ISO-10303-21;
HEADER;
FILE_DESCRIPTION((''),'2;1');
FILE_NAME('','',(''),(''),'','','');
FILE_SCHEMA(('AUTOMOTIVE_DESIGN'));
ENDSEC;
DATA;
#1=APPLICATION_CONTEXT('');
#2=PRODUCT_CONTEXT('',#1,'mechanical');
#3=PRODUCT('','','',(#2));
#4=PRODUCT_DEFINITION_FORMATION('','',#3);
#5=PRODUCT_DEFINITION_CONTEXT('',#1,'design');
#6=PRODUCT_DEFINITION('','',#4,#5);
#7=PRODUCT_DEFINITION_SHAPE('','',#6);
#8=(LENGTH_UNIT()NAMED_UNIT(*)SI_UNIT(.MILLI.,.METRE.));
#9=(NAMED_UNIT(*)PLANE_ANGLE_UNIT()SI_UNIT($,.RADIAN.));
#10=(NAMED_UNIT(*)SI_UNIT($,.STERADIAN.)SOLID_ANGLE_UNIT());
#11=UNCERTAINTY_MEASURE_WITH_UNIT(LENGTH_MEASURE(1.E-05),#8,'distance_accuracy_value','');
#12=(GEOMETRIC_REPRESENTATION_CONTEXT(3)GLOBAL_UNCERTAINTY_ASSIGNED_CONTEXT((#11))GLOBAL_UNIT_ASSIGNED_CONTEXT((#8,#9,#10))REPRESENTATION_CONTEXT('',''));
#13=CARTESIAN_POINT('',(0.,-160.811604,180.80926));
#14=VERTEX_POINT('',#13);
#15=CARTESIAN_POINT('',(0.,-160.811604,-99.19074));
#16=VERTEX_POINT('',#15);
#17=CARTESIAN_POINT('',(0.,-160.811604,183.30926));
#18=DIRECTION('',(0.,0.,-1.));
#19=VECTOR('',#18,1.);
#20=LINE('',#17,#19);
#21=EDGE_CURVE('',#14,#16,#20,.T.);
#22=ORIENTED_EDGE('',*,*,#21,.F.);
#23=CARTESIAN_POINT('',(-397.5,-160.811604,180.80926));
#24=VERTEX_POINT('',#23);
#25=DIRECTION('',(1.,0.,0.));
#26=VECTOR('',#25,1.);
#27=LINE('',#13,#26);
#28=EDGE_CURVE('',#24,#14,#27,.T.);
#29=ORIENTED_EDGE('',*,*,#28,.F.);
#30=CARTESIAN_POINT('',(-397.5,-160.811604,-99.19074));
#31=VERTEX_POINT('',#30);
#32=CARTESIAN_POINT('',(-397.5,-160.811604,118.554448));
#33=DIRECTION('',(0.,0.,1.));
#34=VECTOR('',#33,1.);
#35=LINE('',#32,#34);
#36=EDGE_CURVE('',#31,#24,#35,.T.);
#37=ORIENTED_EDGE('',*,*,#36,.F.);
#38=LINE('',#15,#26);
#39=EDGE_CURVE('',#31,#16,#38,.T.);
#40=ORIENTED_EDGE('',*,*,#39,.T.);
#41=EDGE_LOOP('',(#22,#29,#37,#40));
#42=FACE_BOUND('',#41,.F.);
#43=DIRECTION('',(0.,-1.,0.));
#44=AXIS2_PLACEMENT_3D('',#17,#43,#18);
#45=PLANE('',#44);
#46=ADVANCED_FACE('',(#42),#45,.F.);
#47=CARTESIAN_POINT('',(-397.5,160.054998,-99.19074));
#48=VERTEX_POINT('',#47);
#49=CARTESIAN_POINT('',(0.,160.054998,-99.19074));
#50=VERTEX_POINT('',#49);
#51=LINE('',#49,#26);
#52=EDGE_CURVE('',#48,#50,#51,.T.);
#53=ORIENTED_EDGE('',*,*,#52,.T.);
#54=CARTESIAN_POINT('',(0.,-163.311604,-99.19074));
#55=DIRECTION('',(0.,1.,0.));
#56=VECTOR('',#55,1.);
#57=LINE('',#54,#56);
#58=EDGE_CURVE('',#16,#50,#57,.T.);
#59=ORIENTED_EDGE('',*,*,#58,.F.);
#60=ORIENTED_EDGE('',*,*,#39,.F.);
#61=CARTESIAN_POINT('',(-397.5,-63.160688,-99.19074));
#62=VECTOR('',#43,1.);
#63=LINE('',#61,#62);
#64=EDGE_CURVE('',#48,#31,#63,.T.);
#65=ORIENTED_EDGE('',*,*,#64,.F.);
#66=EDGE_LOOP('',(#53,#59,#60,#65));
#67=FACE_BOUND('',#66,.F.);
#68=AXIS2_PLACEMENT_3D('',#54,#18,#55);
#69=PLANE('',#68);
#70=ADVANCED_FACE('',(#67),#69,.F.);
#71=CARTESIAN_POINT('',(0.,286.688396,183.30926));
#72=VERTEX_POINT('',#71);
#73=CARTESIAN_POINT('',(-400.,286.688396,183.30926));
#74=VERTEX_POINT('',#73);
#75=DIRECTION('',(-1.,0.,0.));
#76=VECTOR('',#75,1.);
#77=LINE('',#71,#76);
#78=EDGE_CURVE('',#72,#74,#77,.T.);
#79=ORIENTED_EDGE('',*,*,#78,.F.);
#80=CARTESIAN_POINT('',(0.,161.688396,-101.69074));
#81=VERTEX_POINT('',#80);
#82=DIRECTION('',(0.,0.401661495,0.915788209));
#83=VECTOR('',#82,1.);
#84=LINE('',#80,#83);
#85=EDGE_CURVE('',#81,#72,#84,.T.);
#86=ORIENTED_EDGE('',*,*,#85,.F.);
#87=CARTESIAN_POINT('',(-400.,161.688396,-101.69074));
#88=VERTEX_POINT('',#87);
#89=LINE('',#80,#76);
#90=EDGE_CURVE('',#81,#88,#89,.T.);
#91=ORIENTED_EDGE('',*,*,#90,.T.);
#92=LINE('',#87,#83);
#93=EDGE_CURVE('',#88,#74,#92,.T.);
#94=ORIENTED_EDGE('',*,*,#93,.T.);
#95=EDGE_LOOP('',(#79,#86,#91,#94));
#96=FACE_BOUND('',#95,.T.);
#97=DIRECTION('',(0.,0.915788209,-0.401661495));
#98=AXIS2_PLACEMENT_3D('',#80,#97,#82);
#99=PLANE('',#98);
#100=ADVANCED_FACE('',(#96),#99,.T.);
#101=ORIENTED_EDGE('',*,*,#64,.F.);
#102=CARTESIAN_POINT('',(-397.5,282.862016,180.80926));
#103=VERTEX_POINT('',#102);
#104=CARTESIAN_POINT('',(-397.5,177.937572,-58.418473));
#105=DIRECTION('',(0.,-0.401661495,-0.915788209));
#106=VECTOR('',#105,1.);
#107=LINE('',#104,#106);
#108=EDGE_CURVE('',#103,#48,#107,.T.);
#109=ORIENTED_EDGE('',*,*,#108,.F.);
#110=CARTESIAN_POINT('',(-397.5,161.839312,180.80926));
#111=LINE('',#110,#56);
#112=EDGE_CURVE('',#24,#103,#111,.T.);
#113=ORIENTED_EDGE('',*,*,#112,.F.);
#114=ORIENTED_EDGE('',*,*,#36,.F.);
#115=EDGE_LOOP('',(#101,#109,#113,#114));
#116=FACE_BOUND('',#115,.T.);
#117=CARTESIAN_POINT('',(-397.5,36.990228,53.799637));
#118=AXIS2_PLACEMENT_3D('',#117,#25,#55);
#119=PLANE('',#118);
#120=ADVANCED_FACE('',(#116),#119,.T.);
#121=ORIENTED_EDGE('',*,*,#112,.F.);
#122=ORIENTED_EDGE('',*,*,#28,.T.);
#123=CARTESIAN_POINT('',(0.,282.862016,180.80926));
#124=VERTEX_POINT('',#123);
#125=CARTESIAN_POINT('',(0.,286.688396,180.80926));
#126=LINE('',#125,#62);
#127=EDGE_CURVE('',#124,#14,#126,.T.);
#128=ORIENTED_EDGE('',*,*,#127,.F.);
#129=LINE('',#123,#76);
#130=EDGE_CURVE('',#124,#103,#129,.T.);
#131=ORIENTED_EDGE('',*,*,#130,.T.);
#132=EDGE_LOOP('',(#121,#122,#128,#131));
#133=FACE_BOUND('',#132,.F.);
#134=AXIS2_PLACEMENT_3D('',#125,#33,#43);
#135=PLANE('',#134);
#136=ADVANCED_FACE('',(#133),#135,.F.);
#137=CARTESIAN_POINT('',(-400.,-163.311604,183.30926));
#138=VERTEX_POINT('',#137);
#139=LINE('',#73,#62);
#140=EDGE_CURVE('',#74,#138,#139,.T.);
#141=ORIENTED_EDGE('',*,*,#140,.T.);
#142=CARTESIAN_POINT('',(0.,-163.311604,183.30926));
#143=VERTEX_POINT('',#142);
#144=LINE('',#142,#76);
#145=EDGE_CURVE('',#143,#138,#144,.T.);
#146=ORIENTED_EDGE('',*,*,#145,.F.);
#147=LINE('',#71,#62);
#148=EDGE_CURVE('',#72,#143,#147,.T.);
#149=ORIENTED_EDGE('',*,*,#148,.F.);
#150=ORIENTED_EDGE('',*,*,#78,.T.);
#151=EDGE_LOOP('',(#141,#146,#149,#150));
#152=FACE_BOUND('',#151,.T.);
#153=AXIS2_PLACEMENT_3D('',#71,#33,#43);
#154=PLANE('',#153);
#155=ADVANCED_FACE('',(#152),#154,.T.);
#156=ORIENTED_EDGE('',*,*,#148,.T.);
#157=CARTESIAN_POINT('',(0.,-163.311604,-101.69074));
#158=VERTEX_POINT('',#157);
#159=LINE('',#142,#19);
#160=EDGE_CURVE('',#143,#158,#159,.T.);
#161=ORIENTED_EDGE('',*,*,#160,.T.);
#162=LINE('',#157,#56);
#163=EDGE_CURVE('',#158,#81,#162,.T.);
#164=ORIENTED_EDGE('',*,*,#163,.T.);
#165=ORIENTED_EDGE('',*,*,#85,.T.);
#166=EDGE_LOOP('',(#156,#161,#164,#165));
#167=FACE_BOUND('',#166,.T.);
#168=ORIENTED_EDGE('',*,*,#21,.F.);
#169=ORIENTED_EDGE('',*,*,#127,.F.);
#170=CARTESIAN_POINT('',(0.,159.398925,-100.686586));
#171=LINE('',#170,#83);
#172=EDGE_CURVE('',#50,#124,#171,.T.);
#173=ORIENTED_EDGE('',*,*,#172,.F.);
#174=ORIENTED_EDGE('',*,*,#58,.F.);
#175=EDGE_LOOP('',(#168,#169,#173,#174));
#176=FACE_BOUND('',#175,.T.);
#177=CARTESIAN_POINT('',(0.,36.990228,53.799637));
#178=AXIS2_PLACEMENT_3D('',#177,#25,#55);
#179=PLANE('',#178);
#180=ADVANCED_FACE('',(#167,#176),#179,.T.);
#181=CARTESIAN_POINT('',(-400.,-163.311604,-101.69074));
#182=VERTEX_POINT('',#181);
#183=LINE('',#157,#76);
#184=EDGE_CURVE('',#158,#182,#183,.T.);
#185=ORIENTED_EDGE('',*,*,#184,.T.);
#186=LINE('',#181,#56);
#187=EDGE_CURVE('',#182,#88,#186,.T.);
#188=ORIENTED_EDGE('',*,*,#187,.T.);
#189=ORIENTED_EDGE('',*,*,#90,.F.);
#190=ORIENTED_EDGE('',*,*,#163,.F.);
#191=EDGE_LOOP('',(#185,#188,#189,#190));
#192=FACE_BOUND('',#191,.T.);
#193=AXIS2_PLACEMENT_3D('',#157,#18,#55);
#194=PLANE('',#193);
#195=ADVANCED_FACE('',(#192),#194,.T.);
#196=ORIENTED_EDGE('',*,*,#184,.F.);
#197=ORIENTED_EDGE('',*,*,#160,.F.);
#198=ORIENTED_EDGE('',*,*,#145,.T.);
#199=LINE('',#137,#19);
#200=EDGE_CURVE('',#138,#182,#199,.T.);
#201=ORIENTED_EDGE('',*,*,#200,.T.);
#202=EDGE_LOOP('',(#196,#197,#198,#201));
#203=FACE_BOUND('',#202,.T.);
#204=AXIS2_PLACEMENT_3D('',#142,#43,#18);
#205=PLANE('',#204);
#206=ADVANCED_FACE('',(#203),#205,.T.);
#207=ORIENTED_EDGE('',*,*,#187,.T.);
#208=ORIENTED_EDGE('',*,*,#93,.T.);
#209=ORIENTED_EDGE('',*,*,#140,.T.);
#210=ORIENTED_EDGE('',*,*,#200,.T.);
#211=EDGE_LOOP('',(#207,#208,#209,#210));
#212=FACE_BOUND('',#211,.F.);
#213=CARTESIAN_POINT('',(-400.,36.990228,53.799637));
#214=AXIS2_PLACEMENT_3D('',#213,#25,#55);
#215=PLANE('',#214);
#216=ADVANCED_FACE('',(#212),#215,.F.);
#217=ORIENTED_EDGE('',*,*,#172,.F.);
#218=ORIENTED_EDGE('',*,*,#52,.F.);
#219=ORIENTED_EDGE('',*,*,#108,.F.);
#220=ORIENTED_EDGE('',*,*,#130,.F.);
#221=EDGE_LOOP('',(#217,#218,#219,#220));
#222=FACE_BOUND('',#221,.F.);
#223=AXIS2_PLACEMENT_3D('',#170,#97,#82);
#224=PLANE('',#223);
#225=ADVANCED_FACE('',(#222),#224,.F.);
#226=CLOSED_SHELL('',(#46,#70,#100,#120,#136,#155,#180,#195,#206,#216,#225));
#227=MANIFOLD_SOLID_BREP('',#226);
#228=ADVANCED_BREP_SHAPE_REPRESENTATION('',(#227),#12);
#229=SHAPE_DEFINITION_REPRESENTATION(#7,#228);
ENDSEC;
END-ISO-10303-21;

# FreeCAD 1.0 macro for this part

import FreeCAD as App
import Part
import Sketcher
from FreeCAD import Vector
Q = App.Units.Quantity


def faces_at(feature, points):
    """Names of the faces that lie closest to the given points."""
    faces = feature.Shape.Faces
    near = lambda p: min(range(len(faces)), key=lambda i: faces[i].distToShape(Part.Vertex(*p))[0])
    return sorted({f"Face{near(p) + 1}" for p in points})

doc = App.newDocument("Part")
body = doc.addObject("PartDesign::Body", "Body")

# Sketch on YZ plane
sketch1 = body.newObject("Sketcher::SketchObject", "Sketch")
sketch1.AttachmentSupport = (doc.getObject("YZ_Plane"), [""])
sketch1.MapMode = "FlatFace"
sketch1.addGeometry(Part.LineSegment(Vector(286.688396, 183.30926, 0), Vector(-163.311604, 183.30926, 0)), False)
sketch1.addGeometry(Part.LineSegment(Vector(-163.311604, 183.30926, 0), Vector(-163.311604, -101.69074, 0)), False)
sketch1.addGeometry(Part.LineSegment(Vector(-163.311604, -101.69074, 0), Vector(161.688396, -101.69074, 0)), False)
sketch1.addGeometry(Part.LineSegment(Vector(161.688396, -101.69074, 0), Vector(286.688396, 183.30926, 0)), False)
sketch1.addConstraint(Sketcher.Constraint("Coincident", 0, 2, 1, 1))
sketch1.addConstraint(Sketcher.Constraint("Coincident", 1, 2, 2, 1))
sketch1.addConstraint(Sketcher.Constraint("Coincident", 2, 2, 3, 1))
sketch1.addConstraint(Sketcher.Constraint("Coincident", 3, 2, 0, 1))
sketch1.addConstraint(Sketcher.Constraint("Horizontal", 0))
sketch1.addConstraint(Sketcher.Constraint("Vertical", 1))
sketch1.addConstraint(Sketcher.Constraint("Horizontal", 2))
sketch1.addConstraint(Sketcher.Constraint("DistanceX", 0, 2, 0, 1, Q("450 mm")))
sketch1.addConstraint(Sketcher.Constraint("DistanceX", 2, 1, 2, 2, Q("325 mm")))
sketch1.addConstraint(Sketcher.Constraint("DistanceY", 1, 2, 1, 1, Q("285 mm")))
sketch1.addConstraint(Sketcher.Constraint("DistanceY", -1, 1, 0, 2, Q("183.30926 mm")))
sketch1.addConstraint(Sketcher.Constraint("DistanceX", 0, 2, -1, 1, Q("163.311604 mm")))
pad1 = body.newObject("PartDesign::Pad", "Pad")
pad1.Profile = sketch1
pad1.Length = 400
pad1.Reversed = True
doc.recompute()

thickness = body.newObject("PartDesign::Thickness", "Thickness")
thickness.Base = (pad1, faces_at(pad1, [(0, 61.688, 40.809)]))
thickness.Value = 2.5
thickness.Reversed = True
thickness.Join = "Arc"

doc.recompute()
